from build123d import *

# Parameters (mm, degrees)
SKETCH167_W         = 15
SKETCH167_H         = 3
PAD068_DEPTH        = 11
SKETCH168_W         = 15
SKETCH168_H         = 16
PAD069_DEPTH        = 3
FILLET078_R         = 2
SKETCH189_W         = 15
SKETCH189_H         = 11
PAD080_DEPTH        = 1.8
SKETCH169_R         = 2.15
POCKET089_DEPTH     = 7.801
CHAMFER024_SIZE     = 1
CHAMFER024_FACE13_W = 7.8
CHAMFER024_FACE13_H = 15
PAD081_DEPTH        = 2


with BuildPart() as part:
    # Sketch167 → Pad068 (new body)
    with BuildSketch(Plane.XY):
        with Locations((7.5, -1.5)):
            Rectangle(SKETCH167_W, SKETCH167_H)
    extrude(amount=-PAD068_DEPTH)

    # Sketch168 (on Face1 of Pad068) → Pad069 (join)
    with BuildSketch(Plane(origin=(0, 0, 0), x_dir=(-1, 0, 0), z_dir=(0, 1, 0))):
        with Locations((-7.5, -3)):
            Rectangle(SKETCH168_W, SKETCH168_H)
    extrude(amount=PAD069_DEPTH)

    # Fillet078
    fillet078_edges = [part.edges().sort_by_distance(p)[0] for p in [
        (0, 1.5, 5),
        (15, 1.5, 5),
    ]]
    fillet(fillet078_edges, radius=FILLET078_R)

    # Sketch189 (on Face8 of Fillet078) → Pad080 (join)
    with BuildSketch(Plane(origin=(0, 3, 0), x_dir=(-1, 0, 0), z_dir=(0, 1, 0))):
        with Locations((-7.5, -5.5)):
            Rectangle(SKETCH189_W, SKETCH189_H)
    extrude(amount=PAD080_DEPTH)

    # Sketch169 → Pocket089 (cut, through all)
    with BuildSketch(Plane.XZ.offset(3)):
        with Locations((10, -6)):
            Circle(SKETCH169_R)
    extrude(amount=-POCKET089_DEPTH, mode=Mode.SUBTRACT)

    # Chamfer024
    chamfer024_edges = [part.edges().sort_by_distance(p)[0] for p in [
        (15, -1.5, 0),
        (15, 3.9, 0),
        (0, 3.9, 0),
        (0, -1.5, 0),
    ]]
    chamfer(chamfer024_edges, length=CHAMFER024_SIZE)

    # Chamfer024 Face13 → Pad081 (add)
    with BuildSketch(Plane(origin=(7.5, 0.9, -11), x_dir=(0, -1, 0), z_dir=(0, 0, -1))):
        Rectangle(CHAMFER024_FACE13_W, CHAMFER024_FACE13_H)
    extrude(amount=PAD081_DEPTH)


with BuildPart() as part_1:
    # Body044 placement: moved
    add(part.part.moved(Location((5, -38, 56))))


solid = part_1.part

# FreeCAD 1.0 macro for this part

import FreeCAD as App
import Part
import Sketcher
from FreeCAD import Vector


def edges_at(feature, points):
    """Names of the edges that pass closest to the given points."""
    edges = feature.Shape.Edges
    near = lambda p: min(range(len(edges)), key=lambda i: edges[i].distToShape(Part.Vertex(*p))[0])
    return sorted({f"Edge{near(p) + 1}" for p in points})


def add_polygon(sketch, points):
    """Adds a closed chain of lines whose ends are joined by coincident constraints."""
    first, n = sketch.GeometryCount, len(points)
    for a, b in zip(points, points[1:] + points[:1]):
        sketch.addGeometry(Part.LineSegment(App.Vector(*a, 0), App.Vector(*b, 0)), False)
    for i in range(n):
        sketch.addConstraint(Sketcher.Constraint("Coincident", first + i, 2, first + (i + 1) % n, 1))

doc = App.newDocument("Part")
body = doc.addObject("PartDesign::Body", "Body")

sketch1 = body.newObject("Sketcher::SketchObject", "Sketch")
sketch1.AttachmentSupport = (doc.getObject("XY_Plane"), [""])
sketch1.MapMode = "FlatFace"
add_polygon(sketch1, [(0, 0), (0, -3), (15, -3), (15, 0)])
sketch1.addConstraint(Sketcher.Constraint("Vertical", 0))
sketch1.addConstraint(Sketcher.Constraint("Horizontal", 1))
sketch1.addConstraint(Sketcher.Constraint("Vertical", 2))
sketch1.addConstraint(Sketcher.Constraint("Horizontal", 3))
sketch1.addConstraint(Sketcher.Constraint("Coincident", 3, 2, -1, 1))
sketch1.addConstraint(Sketcher.Constraint("DistanceX", 1, 1, 1, 2, 15.0))
sketch1.addConstraint(Sketcher.Constraint("DistanceY", 0, 2, 0, 1, 3.0))
pad1 = body.newObject("PartDesign::Pad", "Pad")
pad1.Profile = sketch1
pad1.Length = 11
pad1.Reversed = True

sketch2 = body.newObject("Sketcher::SketchObject", "Sketch001")
sketch2.AttachmentSupport = (doc.getObject("XZ_Plane"), [""])
sketch2.MapMode = "FlatFace"
add_polygon(sketch2, [(15, 5), (15, -11), (0, -11), (0, 5)])
sketch2.addConstraint(Sketcher.Constraint("Vertical", 0))
sketch2.addConstraint(Sketcher.Constraint("Horizontal", 1))
sketch2.addConstraint(Sketcher.Constraint("Vertical", 2))
sketch2.addConstraint(Sketcher.Constraint("Horizontal", 3))
sketch2.addConstraint(Sketcher.Constraint("PointOnObject", 1, 2, -2))
sketch2.addConstraint(Sketcher.Constraint("DistanceX", 1, 2, 1, 1, 15.0))
sketch2.addConstraint(Sketcher.Constraint("DistanceY", 0, 2, 0, 1, 16.0))
sketch2.addConstraint(Sketcher.Constraint("DistanceY", 0, 2, -1, 1, 11.0))
pad2 = body.newObject("PartDesign::Pad", "Pad001")
pad2.Profile = sketch2
pad2.Length = 3
pad2.Reversed = True
doc.recompute()

fillet = body.newObject("PartDesign::Fillet", "Fillet")
fillet.Base = (pad2, edges_at(pad2, [(0, 1.5, 5), (15, 1.5, 5)]))
fillet.Radius = 2

sketch3 = body.newObject("Sketcher::SketchObject", "Sketch002")
sketch3.AttachmentSupport = (doc.getObject("XZ_Plane"), [""])
sketch3.MapMode = "FlatFace"
sketch3.AttachmentOffset = App.Placement(Vector(0, 0, -3), App.Rotation())
add_polygon(sketch3, [(15, 0), (15, -11), (0, -11), (0, 0)])
sketch3.addConstraint(Sketcher.Constraint("Vertical", 0))
sketch3.addConstraint(Sketcher.Constraint("Horizontal", 1))
sketch3.addConstraint(Sketcher.Constraint("Vertical", 2))
sketch3.addConstraint(Sketcher.Constraint("Horizontal", 3))
sketch3.addConstraint(Sketcher.Constraint("Coincident", 2, 2, -1, 1))
sketch3.addConstraint(Sketcher.Constraint("DistanceX", 1, 2, 1, 1, 15.0))
sketch3.addConstraint(Sketcher.Constraint("DistanceY", 0, 2, 0, 1, 11.0))
pad3 = body.newObject("PartDesign::Pad", "Pad002")
pad3.Profile = sketch3
pad3.Length = 1.8
pad3.Reversed = True

sketch4 = body.newObject("Sketcher::SketchObject", "Sketch003")
sketch4.AttachmentSupport = (doc.getObject("XZ_Plane"), [""])
sketch4.MapMode = "FlatFace"
sketch4.AttachmentOffset = App.Placement(Vector(0, 0, 3), App.Rotation())
sketch4.addGeometry(Part.Circle(Vector(10, -6, 0), Vector(0, 0, 1), 2.1), False)
sketch4.addConstraint(Sketcher.Constraint("Diameter", 0, 4.3))
sketch4.addConstraint(Sketcher.Constraint("DistanceX", -1, 1, 0, 3, 10.0))
sketch4.addConstraint(Sketcher.Constraint("DistanceY", 0, 3, -1, 1, 6.0))
pocket1 = body.newObject("PartDesign::Pocket", "Pocket")
pocket1.Profile = sketch4
pocket1.Type = "ThroughAll"
doc.recompute()

chamfer = body.newObject("PartDesign::Chamfer", "Chamfer")
chamfer.Base = (pocket1, edges_at(pocket1, [
    (15, -1.5, 0),
    (15, 3.9, 0),
    (0, 3.9, 0),
    (0, -1.5, 0),
]))
chamfer.Size = 1

sketch5 = body.newObject("Sketcher::SketchObject", "Sketch004")
sketch5.AttachmentSupport = (doc.getObject("XY_Plane"), [""])
sketch5.MapMode = "FlatFace"
sketch5.AttachmentOffset = App.Placement(Vector(0, 0, -11), App.Rotation())
add_polygon(sketch5, [(0, 5), (15, 5), (15, -3), (0, -3)])
sketch5.addConstraint(Sketcher.Constraint("Horizontal", 0))
sketch5.addConstraint(Sketcher.Constraint("Vertical", 1))
sketch5.addConstraint(Sketcher.Constraint("Horizontal", 2))
sketch5.addConstraint(Sketcher.Constraint("Vertical", 3))
sketch5.addConstraint(Sketcher.Constraint("PointOnObject", 2, 2, -2))
sketch5.addConstraint(Sketcher.Constraint("DistanceX", 0, 1, 0, 2, 15.0))
sketch5.addConstraint(Sketcher.Constraint("DistanceY", 1, 2, 1, 1, 7.8))
sketch5.addConstraint(Sketcher.Constraint("DistanceY", 1, 2, -1, 1, 3.0))
pad4 = body.newObject("PartDesign::Pad", "Pad003")
pad4.Profile = sketch5
pad4.Length = 2
pad4.Reversed = True
body2 = doc.addObject("PartDesign::Body", "Body001")
doc.recompute()

body.Placement = App.Placement(Vector(5, -38, 56), App.Rotation(Vector(0, 0, 1), 0))
boolean = body2.newObject("PartDesign::Boolean", "Boolean")
boolean.Type = "Fuse"
boolean.addObjects([body])

doc.recompute()
